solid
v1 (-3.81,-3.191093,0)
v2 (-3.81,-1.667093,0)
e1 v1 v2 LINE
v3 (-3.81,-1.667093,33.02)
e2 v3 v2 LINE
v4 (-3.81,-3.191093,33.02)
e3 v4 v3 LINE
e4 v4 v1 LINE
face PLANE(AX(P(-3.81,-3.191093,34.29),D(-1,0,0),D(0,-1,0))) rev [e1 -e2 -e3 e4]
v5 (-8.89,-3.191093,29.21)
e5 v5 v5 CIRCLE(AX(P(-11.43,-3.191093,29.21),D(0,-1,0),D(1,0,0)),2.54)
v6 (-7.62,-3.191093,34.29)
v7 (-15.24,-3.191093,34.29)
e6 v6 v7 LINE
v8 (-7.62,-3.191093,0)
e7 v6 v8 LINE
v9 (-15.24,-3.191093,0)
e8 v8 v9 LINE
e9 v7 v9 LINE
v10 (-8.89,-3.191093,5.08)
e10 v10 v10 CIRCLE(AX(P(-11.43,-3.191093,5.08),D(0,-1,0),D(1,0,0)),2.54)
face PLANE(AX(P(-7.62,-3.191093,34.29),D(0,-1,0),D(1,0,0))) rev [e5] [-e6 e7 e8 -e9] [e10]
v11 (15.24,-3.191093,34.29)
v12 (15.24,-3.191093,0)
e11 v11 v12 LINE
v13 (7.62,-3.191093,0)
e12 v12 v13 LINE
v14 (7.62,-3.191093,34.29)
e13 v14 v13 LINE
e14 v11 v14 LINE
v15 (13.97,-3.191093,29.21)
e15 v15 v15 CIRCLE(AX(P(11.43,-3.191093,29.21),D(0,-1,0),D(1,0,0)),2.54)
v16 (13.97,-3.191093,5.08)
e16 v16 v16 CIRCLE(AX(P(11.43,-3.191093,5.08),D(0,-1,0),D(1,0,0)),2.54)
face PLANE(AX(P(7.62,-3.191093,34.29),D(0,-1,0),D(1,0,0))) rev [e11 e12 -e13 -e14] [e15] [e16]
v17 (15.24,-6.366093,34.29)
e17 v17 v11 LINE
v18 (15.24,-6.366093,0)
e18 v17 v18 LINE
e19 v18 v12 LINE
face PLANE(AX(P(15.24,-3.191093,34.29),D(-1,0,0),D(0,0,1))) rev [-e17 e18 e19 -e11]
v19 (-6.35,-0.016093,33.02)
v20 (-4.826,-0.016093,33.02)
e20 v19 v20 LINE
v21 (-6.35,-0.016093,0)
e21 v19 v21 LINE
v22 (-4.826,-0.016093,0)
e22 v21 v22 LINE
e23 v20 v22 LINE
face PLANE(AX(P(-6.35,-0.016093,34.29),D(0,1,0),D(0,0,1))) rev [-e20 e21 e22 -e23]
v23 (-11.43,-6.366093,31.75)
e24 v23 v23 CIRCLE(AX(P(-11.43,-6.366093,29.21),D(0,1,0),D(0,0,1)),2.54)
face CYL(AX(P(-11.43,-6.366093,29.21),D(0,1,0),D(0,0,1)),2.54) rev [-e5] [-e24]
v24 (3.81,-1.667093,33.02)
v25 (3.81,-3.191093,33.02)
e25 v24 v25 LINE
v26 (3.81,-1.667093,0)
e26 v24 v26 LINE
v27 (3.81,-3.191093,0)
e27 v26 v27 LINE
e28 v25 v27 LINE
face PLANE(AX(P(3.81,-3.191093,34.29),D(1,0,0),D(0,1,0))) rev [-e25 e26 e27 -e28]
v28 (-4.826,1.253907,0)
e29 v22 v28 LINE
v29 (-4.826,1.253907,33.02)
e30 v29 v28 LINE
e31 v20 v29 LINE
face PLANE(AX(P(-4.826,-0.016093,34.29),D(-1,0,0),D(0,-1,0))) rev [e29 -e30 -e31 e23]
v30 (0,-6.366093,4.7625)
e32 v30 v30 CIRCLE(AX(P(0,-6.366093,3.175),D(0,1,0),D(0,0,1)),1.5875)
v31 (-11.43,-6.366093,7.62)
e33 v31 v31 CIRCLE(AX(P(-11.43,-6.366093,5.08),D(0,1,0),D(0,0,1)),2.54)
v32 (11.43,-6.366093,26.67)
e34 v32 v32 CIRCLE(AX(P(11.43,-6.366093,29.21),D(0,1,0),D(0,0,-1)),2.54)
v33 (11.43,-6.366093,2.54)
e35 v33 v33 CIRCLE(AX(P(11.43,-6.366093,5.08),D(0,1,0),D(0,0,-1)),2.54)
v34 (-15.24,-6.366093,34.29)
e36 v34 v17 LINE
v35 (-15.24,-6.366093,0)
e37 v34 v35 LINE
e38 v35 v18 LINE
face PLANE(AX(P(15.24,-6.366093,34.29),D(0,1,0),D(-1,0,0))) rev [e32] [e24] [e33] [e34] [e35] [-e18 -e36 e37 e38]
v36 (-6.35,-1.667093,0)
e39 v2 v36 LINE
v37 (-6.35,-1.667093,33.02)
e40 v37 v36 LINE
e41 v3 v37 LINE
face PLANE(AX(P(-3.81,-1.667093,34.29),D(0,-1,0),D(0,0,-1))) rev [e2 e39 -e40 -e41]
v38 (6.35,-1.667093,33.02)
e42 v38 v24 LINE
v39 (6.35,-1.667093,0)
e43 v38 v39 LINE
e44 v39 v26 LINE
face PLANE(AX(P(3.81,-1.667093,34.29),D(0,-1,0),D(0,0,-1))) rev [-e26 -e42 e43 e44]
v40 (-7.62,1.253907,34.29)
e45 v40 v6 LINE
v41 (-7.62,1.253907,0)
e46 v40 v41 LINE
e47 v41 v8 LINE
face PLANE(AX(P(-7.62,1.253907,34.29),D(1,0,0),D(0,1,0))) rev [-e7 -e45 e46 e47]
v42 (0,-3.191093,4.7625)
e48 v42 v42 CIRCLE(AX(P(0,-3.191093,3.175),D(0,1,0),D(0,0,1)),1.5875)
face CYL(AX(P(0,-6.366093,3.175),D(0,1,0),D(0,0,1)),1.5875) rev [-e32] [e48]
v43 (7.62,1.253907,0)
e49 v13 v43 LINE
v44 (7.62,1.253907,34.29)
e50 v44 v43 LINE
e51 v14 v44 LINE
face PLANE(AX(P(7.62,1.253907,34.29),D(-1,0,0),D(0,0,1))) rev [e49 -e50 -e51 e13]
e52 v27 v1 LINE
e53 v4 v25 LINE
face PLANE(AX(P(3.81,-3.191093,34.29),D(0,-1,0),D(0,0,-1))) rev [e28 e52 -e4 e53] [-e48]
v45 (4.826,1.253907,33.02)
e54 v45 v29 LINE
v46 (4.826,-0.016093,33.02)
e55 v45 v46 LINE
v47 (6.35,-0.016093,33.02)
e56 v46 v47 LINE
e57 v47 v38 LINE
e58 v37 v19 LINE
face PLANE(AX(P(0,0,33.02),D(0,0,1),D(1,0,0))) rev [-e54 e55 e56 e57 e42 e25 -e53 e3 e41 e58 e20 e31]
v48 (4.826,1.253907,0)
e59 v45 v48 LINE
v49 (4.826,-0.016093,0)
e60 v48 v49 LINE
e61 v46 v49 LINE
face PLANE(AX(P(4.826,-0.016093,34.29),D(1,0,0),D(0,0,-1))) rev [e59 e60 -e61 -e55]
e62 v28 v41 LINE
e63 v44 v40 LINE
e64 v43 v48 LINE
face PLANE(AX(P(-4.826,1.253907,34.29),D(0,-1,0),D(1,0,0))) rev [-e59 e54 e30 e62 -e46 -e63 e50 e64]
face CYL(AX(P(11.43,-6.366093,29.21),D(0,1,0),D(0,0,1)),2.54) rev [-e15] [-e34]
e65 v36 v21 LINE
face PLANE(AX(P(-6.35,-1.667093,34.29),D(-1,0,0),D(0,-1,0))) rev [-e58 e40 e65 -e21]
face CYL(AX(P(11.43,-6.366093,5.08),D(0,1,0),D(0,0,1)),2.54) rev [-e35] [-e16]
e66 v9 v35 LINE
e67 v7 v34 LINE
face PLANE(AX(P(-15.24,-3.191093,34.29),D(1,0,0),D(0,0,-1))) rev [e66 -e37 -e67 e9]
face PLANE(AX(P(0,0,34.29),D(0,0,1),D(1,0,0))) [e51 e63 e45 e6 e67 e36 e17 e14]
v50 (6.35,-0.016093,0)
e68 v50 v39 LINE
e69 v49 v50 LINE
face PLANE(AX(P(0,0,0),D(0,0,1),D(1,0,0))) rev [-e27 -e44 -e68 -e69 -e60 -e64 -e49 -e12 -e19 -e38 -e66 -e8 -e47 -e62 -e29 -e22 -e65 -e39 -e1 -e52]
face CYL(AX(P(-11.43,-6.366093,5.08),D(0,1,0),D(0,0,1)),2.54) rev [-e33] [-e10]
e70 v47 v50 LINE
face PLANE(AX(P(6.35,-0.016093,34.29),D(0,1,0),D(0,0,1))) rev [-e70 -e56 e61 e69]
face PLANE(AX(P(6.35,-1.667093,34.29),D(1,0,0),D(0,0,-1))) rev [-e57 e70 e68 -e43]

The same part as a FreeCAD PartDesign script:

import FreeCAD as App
import Part
import Sketcher

V = App.Vector
Q = App.Units.Quantity

doc = App.newDocument("Part")
body = doc.addObject("PartDesign::Body", "Body")

# Sketch on XY plane
sketch1 = body.newObject("Sketcher::SketchObject", "Sketch")
sketch1.AttachmentSupport = (doc.getObject("XY_Plane"), [""])
sketch1.MapMode = "FlatFace"
sketch1.addGeometry(Part.LineSegment(V(3.8, -3.2, 0), V(-3.8, -3.2, 0)), False)
sketch1.addGeometry(Part.LineSegment(V(-3.8, -3.2, 0), V(-3.8, -1.7, 0)), False)
sketch1.addGeometry(Part.LineSegment(V(-3.8, -1.7, 0), V(-6.3, -1.7, 0)), False)
sketch1.addGeometry(Part.LineSegment(V(-6.3, -1.7, 0), V(-6.3, 0, 0)), False)
sketch1.addGeometry(Part.LineSegment(V(-6.3, 0, 0), V(-4.8, 0, 0)), False)
sketch1.addGeometry(Part.LineSegment(V(-4.8, 0, 0), V(-4.8, 1.3, 0)), False)
sketch1.addGeometry(Part.LineSegment(V(-4.8, 1.3, 0), V(-7.6, 1.3, 0)), False)
sketch1.addGeometry(Part.LineSegment(V(-7.6, 1.3, 0), V(-7.6, -3.2, 0)), False)
sketch1.addGeometry(Part.LineSegment(V(-7.6, -3.2, 0), V(-15.2, -3.2, 0)), False)
sketch1.addGeometry(Part.LineSegment(V(-15.2, -3.2, 0), V(-15.2, -6.4, 0)), False)
sketch1.addGeometry(Part.LineSegment(V(-15.2, -6.4, 0), V(15.2, -6.4, 0)), False)
sketch1.addGeometry(Part.LineSegment(V(15.2, -6.4, 0), V(15.2, -3.2, 0)), False)
sketch1.addGeometry(Part.LineSegment(V(15.2, -3.2, 0), V(7.6, -3.2, 0)), False)
sketch1.addGeometry(Part.LineSegment(V(7.6, -3.2, 0), V(7.6, 1.3, 0)), False)
sketch1.addGeometry(Part.LineSegment(V(7.6, 1.3, 0), V(4.8, 1.3, 0)), False)
sketch1.addGeometry(Part.LineSegment(V(4.8, 1.3, 0), V(4.8, 0, 0)), False)
sketch1.addGeometry(Part.LineSegment(V(4.8, 0, 0), V(6.3, 0, 0)), False)
sketch1.addGeometry(Part.LineSegment(V(6.3, 0, 0), V(6.3, -1.7, 0)), False)
sketch1.addGeometry(Part.LineSegment(V(6.3, -1.7, 0), V(3.8, -1.7, 0)), False)
sketch1.addGeometry(Part.LineSegment(V(3.8, -1.7, 0), V(3.8, -3.2, 0)), False)
sketch1.addConstraint(Sketcher.Constraint("Coincident", 0, 2, 1, 1))
sketch1.addConstraint(Sketcher.Constraint("Coincident", 1, 2, 2, 1))
sketch1.addConstraint(Sketcher.Constraint("Coincident", 2, 2, 3, 1))
sketch1.addConstraint(Sketcher.Constraint("Coincident", 3, 2, 4, 1))
sketch1.addConstraint(Sketcher.Constraint("Coincident", 4, 2, 5, 1))
sketch1.addConstraint(Sketcher.Constraint("Coincident", 5, 2, 6, 1))
sketch1.addConstraint(Sketcher.Constraint("Coincident", 6, 2, 7, 1))
sketch1.addConstraint(Sketcher.Constraint("Coincident", 7, 2, 8, 1))
sketch1.addConstraint(Sketcher.Constraint("Coincident", 8, 2, 9, 1))
sketch1.addConstraint(Sketcher.Constraint("Coincident", 9, 2, 10, 1))
sketch1.addConstraint(Sketcher.Constraint("Coincident", 10, 2, 11, 1))
sketch1.addConstraint(Sketcher.Constraint("Coincident", 11, 2, 12, 1))
sketch1.addConstraint(Sketcher.Constraint("Coincident", 12, 2, 13, 1))
sketch1.addConstraint(Sketcher.Constraint("Coincident", 13, 2, 14, 1))
sketch1.addConstraint(Sketcher.Constraint("Coincident", 14, 2, 15, 1))
sketch1.addConstraint(Sketcher.Constraint("Coincident", 15, 2, 16, 1))
sketch1.addConstraint(Sketcher.Constraint("Coincident", 16, 2, 17, 1))
sketch1.addConstraint(Sketcher.Constraint("Coincident", 17, 2, 18, 1))
sketch1.addConstraint(Sketcher.Constraint("Coincident", 18, 2, 19, 1))
sketch1.addConstraint(Sketcher.Constraint("Coincident", 19, 2, 0, 1))
sketch1.addConstraint(Sketcher.Constraint("Horizontal", 0))
sketch1.addConstraint(Sketcher.Constraint("Vertical", 1))
sketch1.addConstraint(Sketcher.Constraint("Horizontal", 2))
sketch1.addConstraint(Sketcher.Constraint("Vertical", 3))
sketch1.addConstraint(Sketcher.Constraint("Horizontal", 4))
sketch1.addConstraint(Sketcher.Constraint("Vertical", 5))
sketch1.addConstraint(Sketcher.Constraint("Horizontal", 6))
sketch1.addConstraint(Sketcher.Constraint("Vertical", 7))
sketch1.addConstraint(Sketcher.Constraint("Horizontal", 8))
sketch1.addConstraint(Sketcher.Constraint("Vertical", 9))
sketch1.addConstraint(Sketcher.Constraint("Horizontal", 10))
sketch1.addConstraint(Sketcher.Constraint("Vertical", 11))
sketch1.addConstraint(Sketcher.Constraint("Horizontal", 12))
sketch1.addConstraint(Sketcher.Constraint("Vertical", 13))
sketch1.addConstraint(Sketcher.Constraint("Horizontal", 14))
sketch1.addConstraint(Sketcher.Constraint("Vertical", 15))
sketch1.addConstraint(Sketcher.Constraint("Horizontal", 16))
sketch1.addConstraint(Sketcher.Constraint("Vertical", 17))
sketch1.addConstraint(Sketcher.Constraint("Horizontal", 18))
sketch1.addConstraint(Sketcher.Constraint("Vertical", 19))
sketch1.addConstraint(Sketcher.Constraint("Symmetric", 8, 2, 11, 2, -2))
sketch1.addConstraint(Sketcher.Constraint("Symmetric", 6, 2, 13, 2, -2))
sketch1.addConstraint(Sketcher.Constraint("Symmetric", 4, 2, 15, 2, -2))
sketch1.addConstraint(Sketcher.Constraint("Symmetric", 2, 2, 17, 2, -2))
sketch1.addConstraint(Sketcher.Constraint("Horizontal", 0, 2, 7, 2))
sketch1.addConstraint(Sketcher.Constraint("Equal", 0, 8))
sketch1.addConstraint(Sketcher.Constraint("Equal", 2, 18))
sketch1.addConstraint(Sketcher.Constraint("Equal", 16, 1))
sketch1.addConstraint(Sketcher.Constraint("DistanceX", 0, 2, 0, 1, Q("0.3 in")))
sketch1.addConstraint(Sketcher.Constraint("DistanceX", 2, 2, 2, 1, Q("0.1 in")))
sketch1.addConstraint(Sketcher.Constraint("DistanceX", 10, 1, 10, 2, Q("1.2 in")))
sketch1.addConstraint(Sketcher.Constraint("DistanceX", 4, 1, 4, 2, Q("0.06 in")))
sketch1.addConstraint(Sketcher.Constraint("DistanceY", 5, 1, 5, 2, Q("0.05 in")))
sketch1.addConstraint(Sketcher.Constraint("DistanceY", 9, 2, 6, 2, Q("0.3 in")))
sketch1.addConstraint(Sketcher.Constraint("DistanceY", 3, 1, 3, 2, Q("0.065 in")))
sketch1.addConstraint(Sketcher.Constraint("DistanceY", 0, 2, -1, 1, 3.191093))
pad1 = body.newObject("PartDesign::Pad", "Pad")
pad1.Profile = sketch1
pad1.Length = Q("1.35 in")

# Sketch on XY plane
sketch2 = body.newObject("Sketcher::SketchObject", "Sketch001")
sketch2.AttachmentSupport = (doc.getObject("XY_Plane"), [""])
sketch2.MapMode = "FlatFace"
sketch2.AttachmentOffset = App.Placement(V(0, 0, 1.35 * 25.4), App.Rotation())
sketch2.addGeometry(Part.LineSegment(V(-7.6, 1.3, 0), V(-7.6, -3.2, 0)), False)
sketch2.addGeometry(Part.LineSegment(V(-7.6, -3.2, 0), V(7.6, -3.2, 0)), False)
sketch2.addGeometry(Part.LineSegment(V(7.6, -3.2, 0), V(7.6, 1.3, 0)), False)
sketch2.addGeometry(Part.LineSegment(V(7.6, 1.3, 0), V(-7.6, 1.3, 0)), False)
sketch2.addConstraint(Sketcher.Constraint("Coincident", 0, 2, 1, 1))
sketch2.addConstraint(Sketcher.Constraint("Coincident", 1, 2, 2, 1))
sketch2.addConstraint(Sketcher.Constraint("Coincident", 2, 2, 3, 1))
sketch2.addConstraint(Sketcher.Constraint("Coincident", 3, 2, 0, 1))
sketch2.addConstraint(Sketcher.Constraint("Vertical", 0))
sketch2.addConstraint(Sketcher.Constraint("Horizontal", 1))
sketch2.addConstraint(Sketcher.Constraint("Vertical", 2))
sketch2.addConstraint(Sketcher.Constraint("Horizontal", 3))
sketch2.addConstraint(Sketcher.Constraint("DistanceX", 1, 1, 1, 2, Q("0.6 in")))
sketch2.addConstraint(Sketcher.Constraint("DistanceX", 0, 2, -1, 1, Q("0.3 in")))
sketch2.addConstraint(Sketcher.Constraint("DistanceY", 0, 2, 0, 1, Q("0.175 in")))
sketch2.addConstraint(Sketcher.Constraint("DistanceY", 0, 2, -1, 1, 3.191093))
pad2 = body.newObject("PartDesign::Pad", "Pad001")
pad2.Profile = sketch2
pad2.Length = Q("0.05 in")
pad2.Reversed = True

# Sketch on XZ plane
sketch3 = body.newObject("Sketcher::SketchObject", "Sketch002")
sketch3.AttachmentSupport = (doc.getObject("XZ_Plane"), [""])
sketch3.MapMode = "FlatFace"
sketch3.addGeometry(Part.Circle(V(-11.4, 5.1, 0), V(0, 0, 1), 2.5), False)
sketch3.addGeometry(Part.Circle(V(-11.4, 29.2, 0), V(0, 0, 1), 2.5), False)
sketch3.addGeometry(Part.Circle(V(11.4, 29.2, 0), V(0, 0, 1), 2.5), False)
sketch3.addGeometry(Part.Circle(V(11.4, 5.1, 0), V(0, 0, 1), 2.5), False)
sketch3.addConstraint(Sketcher.Constraint("Equal", 0, 1))
sketch3.addConstraint(Sketcher.Constraint("Equal", 1, 2))
sketch3.addConstraint(Sketcher.Constraint("Equal", 2, 3))
sketch3.addConstraint(Sketcher.Constraint("Symmetric", 1, 3, 2, 3, -2))
sketch3.addConstraint(Sketcher.Constraint("Symmetric", 0, 3, 3, 3, -2))
sketch3.addConstraint(Sketcher.Constraint("Vertical", 0, 3, 1, 3))
sketch3.addConstraint(Sketcher.Constraint("Diameter", 0, Q("0.2 in")))
sketch3.addConstraint(Sketcher.Constraint("DistanceY", -1, 1, 0, 3, Q("0.2 in")))
sketch3.addConstraint(Sketcher.Constraint("DistanceX", 1, 3, 2, 3, Q("0.9 in")))
sketch3.addConstraint(Sketcher.Constraint("DistanceY", -1, 1, 1, 3, Q("1.15 in")))
pocket1 = body.newObject("PartDesign::Pocket", "Pocket")
pocket1.Profile = sketch3
pocket1.Type = "ThroughAll"
pocket1.Reversed = True

# Sketch on XZ plane
sketch4 = body.newObject("Sketcher::SketchObject", "Sketch003")
sketch4.AttachmentSupport = (doc.getObject("XZ_Plane"), [""])
sketch4.MapMode = "FlatFace"
sketch4.AttachmentOffset = App.Placement(V(0, 0, 3.191093), App.Rotation())
sketch4.addGeometry(Part.Circle(V(0, 3.2, 0), V(0, 0, 1), 1.6), False)
sketch4.addConstraint(Sketcher.Constraint("PointOnObject", 0, 3, -2))
sketch4.addConstraint(Sketcher.Constraint("Diameter", 0, Q("0.125 in")))
sketch4.addConstraint(Sketcher.Constraint("DistanceY", -1, 1, 0, 3, Q("0.125 in")))
pocket2 = body.newObject("PartDesign::Pocket", "Pocket001")
pocket2.Profile = sketch4
pocket2.Type = "ThroughAll"
pocket2.Reversed = True

doc.recompute()
